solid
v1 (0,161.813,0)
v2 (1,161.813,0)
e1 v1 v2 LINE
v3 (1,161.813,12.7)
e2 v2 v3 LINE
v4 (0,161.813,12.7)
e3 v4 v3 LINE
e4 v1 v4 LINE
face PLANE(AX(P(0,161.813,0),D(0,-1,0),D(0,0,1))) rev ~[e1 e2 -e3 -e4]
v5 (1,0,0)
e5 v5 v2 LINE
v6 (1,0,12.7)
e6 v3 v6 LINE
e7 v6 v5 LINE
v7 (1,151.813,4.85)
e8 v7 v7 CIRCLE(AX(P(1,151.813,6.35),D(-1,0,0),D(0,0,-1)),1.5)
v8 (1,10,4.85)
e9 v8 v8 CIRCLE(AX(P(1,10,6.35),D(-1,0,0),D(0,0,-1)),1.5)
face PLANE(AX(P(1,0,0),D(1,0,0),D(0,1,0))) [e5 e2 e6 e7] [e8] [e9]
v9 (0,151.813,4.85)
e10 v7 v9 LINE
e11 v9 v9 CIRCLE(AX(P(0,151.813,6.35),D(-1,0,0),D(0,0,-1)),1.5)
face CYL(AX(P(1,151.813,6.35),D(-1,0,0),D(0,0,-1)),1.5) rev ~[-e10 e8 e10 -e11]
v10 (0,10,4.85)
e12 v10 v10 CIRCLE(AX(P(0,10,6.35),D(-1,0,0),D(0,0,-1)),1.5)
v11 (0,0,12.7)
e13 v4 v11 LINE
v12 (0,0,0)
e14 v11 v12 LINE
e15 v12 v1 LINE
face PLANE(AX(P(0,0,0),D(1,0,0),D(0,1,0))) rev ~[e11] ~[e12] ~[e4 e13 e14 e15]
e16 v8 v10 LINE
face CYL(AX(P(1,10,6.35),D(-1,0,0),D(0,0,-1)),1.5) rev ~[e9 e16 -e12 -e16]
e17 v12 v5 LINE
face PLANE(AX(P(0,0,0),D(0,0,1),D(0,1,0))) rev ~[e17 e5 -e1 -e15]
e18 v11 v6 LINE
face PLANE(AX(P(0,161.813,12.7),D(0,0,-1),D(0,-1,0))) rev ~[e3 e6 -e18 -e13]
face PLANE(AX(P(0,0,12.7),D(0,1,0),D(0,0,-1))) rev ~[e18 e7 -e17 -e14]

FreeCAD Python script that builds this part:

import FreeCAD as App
import Part
import Sketcher
Q = App.Units.Quantity


def add_polygon(sketch, points):
    """Adds a closed chain of lines whose ends are joined by coincident constraints."""
    first, n = sketch.GeometryCount, len(points)
    for a, b in zip(points, points[1:] + points[:1]):
        sketch.addGeometry(Part.LineSegment(App.Vector(*a, 0), App.Vector(*b, 0)), False)
    for i in range(n):
        sketch.addConstraint(Sketcher.Constraint("Coincident", first + i, 2, first + (i + 1) % n, 1))

doc = App.newDocument("Part")
params = doc.addObject("Spreadsheet::Sheet", "Params")
for row, (alias, value) in enumerate([
    ("sketch1_height", "12.7 mm"),
    ("pad1_length", "1 mm"),
    ("sketch2_diameter", "3 mm"),
    ("hole_diameter", "3 mm"),
], start=1):
    params.set(f"A{row}", alias)
    params.set(f"B{row}", "=" + value)
    params.setAlias(f"B{row}", alias)

body = doc.addObject("PartDesign::Body", "Body")

sketch1 = body.newObject("Sketcher::SketchObject", "Sketch")
sketch1.AttachmentSupport = (doc.getObject("YZ_Plane"), [""])
sketch1.MapMode = "FlatFace"
add_polygon(sketch1, [(0, 13), (0, 0), (162, 0), (162, 13)])
sketch1.addConstraint([
    Sketcher.Constraint("Vertical", 0),
    Sketcher.Constraint("Horizontal", 1),
    Sketcher.Constraint("Vertical", 2),
    Sketcher.Constraint("Horizontal", 3),
    Sketcher.Constraint("Coincident", 0, 2, -1, 1),
    Sketcher.Constraint("DistanceY", 0, 2, 0, 1, Q("12.7 mm")),
    Sketcher.Constraint("DistanceX", 1, 1, 1, 2, Q("161.813 mm")),
])
sketch1.setExpression("Constraints[9]", "Params.sketch1_height")
pad1 = body.newObject("PartDesign::Pad", "Pad")
pad1.Profile = sketch1
pad1.setExpression("Length", "Params.pad1_length")

sketch2 = body.newObject("Sketcher::SketchObject", "Sketch001")
sketch2.AttachmentSupport = (doc.getObject("YZ_Plane"), [""])
sketch2.MapMode = "FlatFace"
sketch2.AttachmentOffset = App.Placement(App.Vector(0, 0, 1), App.Rotation())
sketch2.addGeometry([
    Part.Circle(App.Vector(10, 6.3, 0), App.Vector(0, 0, 1), 1.5),
    Part.Circle(App.Vector(151.8, 6.3, 0), App.Vector(0, 0, 1), 1.5),
], False)
sketch2.addConstraint([
    Sketcher.Constraint("Equal", 0, 1),
    Sketcher.Constraint("Horizontal", 0, 3, 1, 3),
    Sketcher.Constraint("Diameter", 0, Q("3 mm")),
    Sketcher.Constraint("DistanceX", -1, 1, 0, 3, Q("10 mm")),
    Sketcher.Constraint("DistanceY", -1, 1, 0, 3, Q("6.35 mm")),
    Sketcher.Constraint("DistanceX", -1, 1, 1, 3, Q("151.813 mm")),
])
sketch2.setExpression("Constraints[2]", "Params.sketch2_diameter")
doc.recompute()
hole = body.newObject("PartDesign::Hole", "Hole")
hole.Profile = sketch2
hole.ThreadType = "None"
hole.setExpression("Diameter", "Params.hole_diameter")
hole.DepthType = "ThroughAll"

doc.recompute()
